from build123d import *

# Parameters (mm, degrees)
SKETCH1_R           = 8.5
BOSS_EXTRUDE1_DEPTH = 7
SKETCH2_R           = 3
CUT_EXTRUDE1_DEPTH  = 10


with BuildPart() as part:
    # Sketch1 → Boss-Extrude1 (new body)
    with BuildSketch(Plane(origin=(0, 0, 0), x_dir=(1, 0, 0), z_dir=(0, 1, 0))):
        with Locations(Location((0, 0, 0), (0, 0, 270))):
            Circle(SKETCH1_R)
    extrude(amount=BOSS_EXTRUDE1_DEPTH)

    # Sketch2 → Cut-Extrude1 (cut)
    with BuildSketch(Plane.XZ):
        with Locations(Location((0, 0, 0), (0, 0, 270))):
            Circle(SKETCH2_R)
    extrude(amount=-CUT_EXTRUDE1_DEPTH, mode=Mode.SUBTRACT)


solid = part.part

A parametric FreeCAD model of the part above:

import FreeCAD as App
import Part
import Sketcher

doc = App.newDocument("Part")
body = doc.addObject("PartDesign::Body", "Body")

# Sketch on XZ plane
sketch1 = doc.addObject("Sketcher::SketchObject", "Sketch")
body.addObject(sketch1)
sketch1.AttachmentSupport = (doc.XZ_Plane, [""])
sketch1.MapMode = "FlatFace"
sketch1.addGeometry(Part.Circle(App.Vector(0, 0, 0), App.Vector(0, 0, 1), 8.5), False)
sketch1.addConstraint(Sketcher.Constraint("Coincident", 0, 3, -1, 1))
sketch1.addConstraint(Sketcher.Constraint("Diameter", 0, 17.0))
pad1 = doc.addObject("PartDesign::Pad", "Pad")
body.addObject(pad1)
pad1.Profile = sketch1
pad1.Length = 7
pad1.Reversed = True

# Sketch on XZ plane
sketch2 = doc.addObject("Sketcher::SketchObject", "Sketch001")
body.addObject(sketch2)
sketch2.AttachmentSupport = (doc.XZ_Plane, [""])
sketch2.MapMode = "FlatFace"
sketch2.addGeometry(Part.Circle(App.Vector(0, 0, 0), App.Vector(0, 0, 1), 3), False)
sketch2.addConstraint(Sketcher.Constraint("Coincident", 0, 3, -1, 1))
sketch2.addConstraint(Sketcher.Constraint("Diameter", 0, 6.0))
pocket1 = doc.addObject("PartDesign::Pocket", "Pocket")
body.addObject(pocket1)
pocket1.Profile = sketch2
pocket1.Length = 10

doc.recompute()
